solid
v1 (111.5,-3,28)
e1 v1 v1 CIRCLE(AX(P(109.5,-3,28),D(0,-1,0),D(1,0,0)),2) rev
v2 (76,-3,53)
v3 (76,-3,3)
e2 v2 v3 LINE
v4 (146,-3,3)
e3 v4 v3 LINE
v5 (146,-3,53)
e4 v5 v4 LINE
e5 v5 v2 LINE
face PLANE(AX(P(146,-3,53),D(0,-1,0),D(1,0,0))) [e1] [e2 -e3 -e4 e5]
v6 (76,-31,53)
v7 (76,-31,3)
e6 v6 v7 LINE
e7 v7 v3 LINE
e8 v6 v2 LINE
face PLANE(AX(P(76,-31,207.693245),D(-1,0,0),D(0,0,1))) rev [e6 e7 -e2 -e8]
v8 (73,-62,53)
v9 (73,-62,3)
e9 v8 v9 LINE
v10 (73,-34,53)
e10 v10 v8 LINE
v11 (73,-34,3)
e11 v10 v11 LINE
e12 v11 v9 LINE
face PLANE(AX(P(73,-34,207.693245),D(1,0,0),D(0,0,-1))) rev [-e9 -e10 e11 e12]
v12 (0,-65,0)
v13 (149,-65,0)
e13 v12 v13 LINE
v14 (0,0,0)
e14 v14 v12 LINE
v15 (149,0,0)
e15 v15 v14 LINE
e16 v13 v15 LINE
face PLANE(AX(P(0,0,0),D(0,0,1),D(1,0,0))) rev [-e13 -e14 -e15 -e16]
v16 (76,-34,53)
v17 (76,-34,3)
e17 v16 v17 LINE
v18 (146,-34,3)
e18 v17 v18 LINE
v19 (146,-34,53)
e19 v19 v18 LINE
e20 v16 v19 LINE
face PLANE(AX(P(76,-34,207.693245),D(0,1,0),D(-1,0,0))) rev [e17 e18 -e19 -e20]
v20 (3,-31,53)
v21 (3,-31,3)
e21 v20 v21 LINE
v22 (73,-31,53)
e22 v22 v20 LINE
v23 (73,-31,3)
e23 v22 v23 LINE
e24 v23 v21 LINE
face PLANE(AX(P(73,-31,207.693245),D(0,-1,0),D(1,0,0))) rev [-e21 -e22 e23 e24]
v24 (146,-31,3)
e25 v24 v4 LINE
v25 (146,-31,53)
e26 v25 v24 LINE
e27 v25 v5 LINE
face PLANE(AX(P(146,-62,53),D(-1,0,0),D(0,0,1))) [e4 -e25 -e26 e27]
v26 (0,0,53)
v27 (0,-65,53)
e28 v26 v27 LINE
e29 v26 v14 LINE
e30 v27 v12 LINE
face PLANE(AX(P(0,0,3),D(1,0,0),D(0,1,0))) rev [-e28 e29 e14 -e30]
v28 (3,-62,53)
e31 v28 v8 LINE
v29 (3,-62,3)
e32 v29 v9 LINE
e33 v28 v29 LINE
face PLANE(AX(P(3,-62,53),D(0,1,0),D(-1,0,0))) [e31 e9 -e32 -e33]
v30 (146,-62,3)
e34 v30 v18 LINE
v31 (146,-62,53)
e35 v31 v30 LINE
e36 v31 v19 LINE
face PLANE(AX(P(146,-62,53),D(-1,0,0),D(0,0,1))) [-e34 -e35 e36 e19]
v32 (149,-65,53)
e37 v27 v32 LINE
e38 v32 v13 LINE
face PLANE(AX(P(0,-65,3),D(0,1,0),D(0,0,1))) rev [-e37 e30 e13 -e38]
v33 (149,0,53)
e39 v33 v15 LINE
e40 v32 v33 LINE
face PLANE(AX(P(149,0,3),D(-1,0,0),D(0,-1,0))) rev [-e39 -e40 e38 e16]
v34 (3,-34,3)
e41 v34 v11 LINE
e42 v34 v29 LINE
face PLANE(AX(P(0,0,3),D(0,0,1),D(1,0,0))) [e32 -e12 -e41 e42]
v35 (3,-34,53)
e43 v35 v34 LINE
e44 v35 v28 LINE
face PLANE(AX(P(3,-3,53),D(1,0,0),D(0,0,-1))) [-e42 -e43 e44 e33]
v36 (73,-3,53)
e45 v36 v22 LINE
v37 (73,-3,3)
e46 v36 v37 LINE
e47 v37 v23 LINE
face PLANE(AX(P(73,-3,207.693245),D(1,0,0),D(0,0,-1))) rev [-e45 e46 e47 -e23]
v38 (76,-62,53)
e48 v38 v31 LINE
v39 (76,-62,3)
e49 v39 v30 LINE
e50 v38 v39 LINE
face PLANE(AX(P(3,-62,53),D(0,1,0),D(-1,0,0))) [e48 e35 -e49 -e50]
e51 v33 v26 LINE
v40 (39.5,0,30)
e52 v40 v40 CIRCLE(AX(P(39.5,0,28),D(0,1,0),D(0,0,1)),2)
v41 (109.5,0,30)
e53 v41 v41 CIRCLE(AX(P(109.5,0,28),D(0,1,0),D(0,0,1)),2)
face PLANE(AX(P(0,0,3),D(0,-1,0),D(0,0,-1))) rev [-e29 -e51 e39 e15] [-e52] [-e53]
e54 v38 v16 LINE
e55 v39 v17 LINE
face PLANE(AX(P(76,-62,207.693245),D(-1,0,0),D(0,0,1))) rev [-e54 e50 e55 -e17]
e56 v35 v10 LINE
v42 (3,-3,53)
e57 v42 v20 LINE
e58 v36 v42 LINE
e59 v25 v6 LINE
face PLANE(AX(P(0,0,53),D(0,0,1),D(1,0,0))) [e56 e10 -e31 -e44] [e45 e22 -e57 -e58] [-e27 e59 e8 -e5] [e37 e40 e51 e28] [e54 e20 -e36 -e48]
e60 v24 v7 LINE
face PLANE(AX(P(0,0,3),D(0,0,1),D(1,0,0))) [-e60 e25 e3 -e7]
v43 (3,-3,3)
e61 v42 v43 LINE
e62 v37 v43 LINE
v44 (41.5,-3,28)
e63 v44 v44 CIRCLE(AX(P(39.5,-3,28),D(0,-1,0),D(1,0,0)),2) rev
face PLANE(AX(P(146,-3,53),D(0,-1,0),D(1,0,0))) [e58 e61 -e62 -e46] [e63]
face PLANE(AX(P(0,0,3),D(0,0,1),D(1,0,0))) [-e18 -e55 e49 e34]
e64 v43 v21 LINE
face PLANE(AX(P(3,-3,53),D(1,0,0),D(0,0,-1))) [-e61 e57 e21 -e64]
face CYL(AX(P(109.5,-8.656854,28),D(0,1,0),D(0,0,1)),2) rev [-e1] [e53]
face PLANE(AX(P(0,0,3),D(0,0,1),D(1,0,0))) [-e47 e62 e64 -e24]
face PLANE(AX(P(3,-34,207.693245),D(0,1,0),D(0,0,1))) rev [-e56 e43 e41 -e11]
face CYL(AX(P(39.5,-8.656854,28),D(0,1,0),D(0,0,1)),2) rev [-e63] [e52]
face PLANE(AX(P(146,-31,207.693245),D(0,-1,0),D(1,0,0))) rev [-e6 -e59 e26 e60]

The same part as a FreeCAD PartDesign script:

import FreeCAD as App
import Part
import Sketcher
Q = App.Units.Quantity

doc = App.newDocument("Part")
body = doc.addObject("PartDesign::Body", "Body")

# Sketch on XY plane
sketch1 = body.newObject("Sketcher::SketchObject", "Sketch")
sketch1.AttachmentSupport = (doc.getObject("XY_Plane"), [""])
sketch1.MapMode = "FlatFace"
sketch1.addGeometry(Part.LineSegment(App.Vector(0, 0, 0), App.Vector(0, -65, 0)), False)
sketch1.addGeometry(Part.LineSegment(App.Vector(0, -65, 0), App.Vector(149, -65, 0)), False)
sketch1.addGeometry(Part.LineSegment(App.Vector(149, -65, 0), App.Vector(149, 0, 0)), False)
sketch1.addGeometry(Part.LineSegment(App.Vector(149, 0, 0), App.Vector(0, 0, 0)), False)
sketch1.addConstraint(Sketcher.Constraint("Coincident", 0, 2, 1, 1))
sketch1.addConstraint(Sketcher.Constraint("Coincident", 1, 2, 2, 1))
sketch1.addConstraint(Sketcher.Constraint("Coincident", 2, 2, 3, 1))
sketch1.addConstraint(Sketcher.Constraint("Coincident", 3, 2, 0, 1))
sketch1.addConstraint(Sketcher.Constraint("Vertical", 0))
sketch1.addConstraint(Sketcher.Constraint("Horizontal", 1))
sketch1.addConstraint(Sketcher.Constraint("Vertical", 2))
sketch1.addConstraint(Sketcher.Constraint("Horizontal", 3))
sketch1.addConstraint(Sketcher.Constraint("Coincident", 3, 2, -1, 1))
sketch1.addConstraint(Sketcher.Constraint("DistanceX", 1, 1, 1, 2, Q("149 mm")))
sketch1.addConstraint(Sketcher.Constraint("DistanceY", 0, 2, 0, 1, Q("65 mm")))
pad1 = body.newObject("PartDesign::Pad", "Pad")
pad1.Profile = sketch1
pad1.Length = 3

# Sketch on XY plane
sketch2 = body.newObject("Sketcher::SketchObject", "Sketch001")
sketch2.AttachmentSupport = (doc.getObject("XY_Plane"), [""])
sketch2.MapMode = "FlatFace"
sketch2.AttachmentOffset = App.Placement(App.Vector(0, 0, 3), App.Rotation())
sketch2.addGeometry(Part.LineSegment(App.Vector(0, 0, 0), App.Vector(0, -65, 0)), False)
sketch2.addGeometry(Part.LineSegment(App.Vector(0, -65, 0), App.Vector(149, -65, 0)), False)
sketch2.addGeometry(Part.LineSegment(App.Vector(149, -65, 0), App.Vector(149, 0, 0)), False)
sketch2.addGeometry(Part.LineSegment(App.Vector(149, 0, 0), App.Vector(0, 0, 0)), False)
sketch2.addGeometry(Part.LineSegment(App.Vector(146, -62, 0), App.Vector(3, -62, 0)), False)
sketch2.addGeometry(Part.LineSegment(App.Vector(3, -62, 0), App.Vector(3, -3, 0)), False)
sketch2.addGeometry(Part.LineSegment(App.Vector(3, -3, 0), App.Vector(146, -3, 0)), False)
sketch2.addGeometry(Part.LineSegment(App.Vector(146, -3, 0), App.Vector(146, -62, 0)), False)
sketch2.addConstraint(Sketcher.Constraint("Coincident", 0, 2, 1, 1))
sketch2.addConstraint(Sketcher.Constraint("Coincident", 1, 2, 2, 1))
sketch2.addConstraint(Sketcher.Constraint("Coincident", 2, 2, 3, 1))
sketch2.addConstraint(Sketcher.Constraint("Coincident", 3, 2, 0, 1))
sketch2.addConstraint(Sketcher.Constraint("Coincident", 4, 2, 5, 1))
sketch2.addConstraint(Sketcher.Constraint("Coincident", 5, 2, 6, 1))
sketch2.addConstraint(Sketcher.Constraint("Coincident", 6, 2, 7, 1))
sketch2.addConstraint(Sketcher.Constraint("Coincident", 7, 2, 4, 1))
sketch2.addConstraint(Sketcher.Constraint("Vertical", 0))
sketch2.addConstraint(Sketcher.Constraint("Horizontal", 1))
sketch2.addConstraint(Sketcher.Constraint("Vertical", 2))
sketch2.addConstraint(Sketcher.Constraint("Horizontal", 3))
sketch2.addConstraint(Sketcher.Constraint("Horizontal", 4))
sketch2.addConstraint(Sketcher.Constraint("Vertical", 5))
sketch2.addConstraint(Sketcher.Constraint("Horizontal", 6))
sketch2.addConstraint(Sketcher.Constraint("Vertical", 7))
sketch2.addConstraint(Sketcher.Constraint("Coincident", 3, 2, -1, 1))
sketch2.addConstraint(Sketcher.Constraint("DistanceX", 1, 1, 1, 2, Q("149 mm")))
sketch2.addConstraint(Sketcher.Constraint("DistanceX", 4, 2, 4, 1, Q("143 mm")))
sketch2.addConstraint(Sketcher.Constraint("DistanceY", 0, 2, 0, 1, Q("65 mm")))
sketch2.addConstraint(Sketcher.Constraint("DistanceY", 5, 1, 5, 2, Q("59 mm")))
sketch2.addConstraint(Sketcher.Constraint("DistanceX", -1, 1, 4, 2, Q("3 mm")))
sketch2.addConstraint(Sketcher.Constraint("DistanceY", 4, 2, -1, 1, Q("62 mm")))
pad2 = body.newObject("PartDesign::Pad", "Pad001")
pad2.Profile = sketch2
pad2.Length = 50

# Sketch on XY plane
sketch3 = body.newObject("Sketcher::SketchObject", "Sketch002")
sketch3.AttachmentSupport = (doc.getObject("XY_Plane"), [""])
sketch3.MapMode = "FlatFace"
sketch3.AttachmentOffset = App.Placement(App.Vector(0, 0, 3), App.Rotation())
sketch3.addGeometry(Part.LineSegment(App.Vector(73, -3, 0), App.Vector(73, -31, 0)), False)
sketch3.addGeometry(Part.LineSegment(App.Vector(73, -31, 0), App.Vector(3, -31, 0)), False)
sketch3.addGeometry(Part.LineSegment(App.Vector(3, -31, 0), App.Vector(3, -34, 0)), False)
sketch3.addGeometry(Part.LineSegment(App.Vector(3, -34, 0), App.Vector(73, -34, 0)), False)
sketch3.addGeometry(Part.LineSegment(App.Vector(73, -34, 0), App.Vector(73, -62, 0)), False)
sketch3.addGeometry(Part.LineSegment(App.Vector(73, -62, 0), App.Vector(76, -62, 0)), False)
sketch3.addGeometry(Part.LineSegment(App.Vector(76, -62, 0), App.Vector(76, -34, 0)), False)
sketch3.addGeometry(Part.LineSegment(App.Vector(76, -34, 0), App.Vector(146, -34, 0)), False)
sketch3.addGeometry(Part.LineSegment(App.Vector(146, -34, 0), App.Vector(146, -31, 0)), False)
sketch3.addGeometry(Part.LineSegment(App.Vector(146, -31, 0), App.Vector(76, -31, 0)), False)
sketch3.addGeometry(Part.LineSegment(App.Vector(76, -31, 0), App.Vector(76, -3, 0)), False)
sketch3.addGeometry(Part.LineSegment(App.Vector(76, -3, 0), App.Vector(73, -3, 0)), False)
sketch3.addConstraint(Sketcher.Constraint("Coincident", 0, 2, 1, 1))
sketch3.addConstraint(Sketcher.Constraint("Coincident", 1, 2, 2, 1))
sketch3.addConstraint(Sketcher.Constraint("Coincident", 2, 2, 3, 1))
sketch3.addConstraint(Sketcher.Constraint("Coincident", 3, 2, 4, 1))
sketch3.addConstraint(Sketcher.Constraint("Coincident", 4, 2, 5, 1))
sketch3.addConstraint(Sketcher.Constraint("Coincident", 5, 2, 6, 1))
sketch3.addConstraint(Sketcher.Constraint("Coincident", 6, 2, 7, 1))
sketch3.addConstraint(Sketcher.Constraint("Coincident", 7, 2, 8, 1))
sketch3.addConstraint(Sketcher.Constraint("Coincident", 8, 2, 9, 1))
sketch3.addConstraint(Sketcher.Constraint("Coincident", 9, 2, 10, 1))
sketch3.addConstraint(Sketcher.Constraint("Coincident", 10, 2, 11, 1))
sketch3.addConstraint(Sketcher.Constraint("Coincident", 11, 2, 0, 1))
sketch3.addConstraint(Sketcher.Constraint("Vertical", 0))
sketch3.addConstraint(Sketcher.Constraint("Horizontal", 1))
sketch3.addConstraint(Sketcher.Constraint("Vertical", 2))
sketch3.addConstraint(Sketcher.Constraint("Horizontal", 3))
sketch3.addConstraint(Sketcher.Constraint("Vertical", 4))
sketch3.addConstraint(Sketcher.Constraint("Horizontal", 5))
sketch3.addConstraint(Sketcher.Constraint("Vertical", 6))
sketch3.addConstraint(Sketcher.Constraint("Horizontal", 7))
sketch3.addConstraint(Sketcher.Constraint("Vertical", 8))
sketch3.addConstraint(Sketcher.Constraint("Horizontal", 9))
sketch3.addConstraint(Sketcher.Constraint("Vertical", 10))
sketch3.addConstraint(Sketcher.Constraint("Horizontal", 11))
sketch3.addConstraint(Sketcher.Constraint("Horizontal", 3, 2, 6, 2))
sketch3.addConstraint(Sketcher.Constraint("Horizontal", 1, 2, 8, 2))
sketch3.addConstraint(Sketcher.Constraint("Vertical", 0, 2, 3, 2))
sketch3.addConstraint(Sketcher.Constraint("Vertical", 6, 2, 9, 2))
sketch3.addConstraint(Sketcher.Constraint("Equal", 3, 7))
sketch3.addConstraint(Sketcher.Constraint("Equal", 11, 2))
sketch3.addConstraint(Sketcher.Constraint("Equal", 0, 4))
sketch3.addConstraint(Sketcher.Constraint("DistanceX", 1, 2, 1, 1, Q("70 mm")))
sketch3.addConstraint(Sketcher.Constraint("DistanceX", 5, 1, 5, 2, Q("3 mm")))
sketch3.addConstraint(Sketcher.Constraint("DistanceY", 0, 2, 0, 1, Q("28 mm")))
sketch3.addConstraint(Sketcher.Constraint("DistanceX", -1, 1, 0, 2, Q("73 mm")))
sketch3.addConstraint(Sketcher.Constraint("DistanceY", 0, 2, -1, 1, Q("31 mm")))
pad3 = body.newObject("PartDesign::Pad", "Pad002")
pad3.Profile = sketch3
pad3.Length = 50

# Sketch on XZ plane
sketch4 = body.newObject("Sketcher::SketchObject", "Sketch003")
sketch4.AttachmentSupport = (doc.getObject("XZ_Plane"), [""])
sketch4.MapMode = "FlatFace"
sketch4.addGeometry(Part.Circle(App.Vector(39.5, 28, 0), App.Vector(0, 0, 1), 2), False)
sketch4.addGeometry(Part.Circle(App.Vector(109.5, 28, 0), App.Vector(0, 0, 1), 2), False)
sketch4.addConstraint(Sketcher.Constraint("Equal", 0, 1))
sketch4.addConstraint(Sketcher.Constraint("Horizontal", 0, 3, 1, 3))
sketch4.addConstraint(Sketcher.Constraint("Diameter", 0, Q("4 mm")))
sketch4.addConstraint(Sketcher.Constraint("DistanceY", -1, 1, 0, 3, Q("28 mm")))
sketch4.addConstraint(Sketcher.Constraint("DistanceX", 0, 3, 1, 3, Q("70 mm")))
sketch4.addConstraint(Sketcher.Constraint("DistanceX", -1, 1, 0, 3, Q("39.5 mm")))
pocket1 = body.newObject("PartDesign::Pocket", "Pocket")
pocket1.Profile = sketch4
pocket1.Length = 3
pocket1.Reversed = True

doc.recompute()
